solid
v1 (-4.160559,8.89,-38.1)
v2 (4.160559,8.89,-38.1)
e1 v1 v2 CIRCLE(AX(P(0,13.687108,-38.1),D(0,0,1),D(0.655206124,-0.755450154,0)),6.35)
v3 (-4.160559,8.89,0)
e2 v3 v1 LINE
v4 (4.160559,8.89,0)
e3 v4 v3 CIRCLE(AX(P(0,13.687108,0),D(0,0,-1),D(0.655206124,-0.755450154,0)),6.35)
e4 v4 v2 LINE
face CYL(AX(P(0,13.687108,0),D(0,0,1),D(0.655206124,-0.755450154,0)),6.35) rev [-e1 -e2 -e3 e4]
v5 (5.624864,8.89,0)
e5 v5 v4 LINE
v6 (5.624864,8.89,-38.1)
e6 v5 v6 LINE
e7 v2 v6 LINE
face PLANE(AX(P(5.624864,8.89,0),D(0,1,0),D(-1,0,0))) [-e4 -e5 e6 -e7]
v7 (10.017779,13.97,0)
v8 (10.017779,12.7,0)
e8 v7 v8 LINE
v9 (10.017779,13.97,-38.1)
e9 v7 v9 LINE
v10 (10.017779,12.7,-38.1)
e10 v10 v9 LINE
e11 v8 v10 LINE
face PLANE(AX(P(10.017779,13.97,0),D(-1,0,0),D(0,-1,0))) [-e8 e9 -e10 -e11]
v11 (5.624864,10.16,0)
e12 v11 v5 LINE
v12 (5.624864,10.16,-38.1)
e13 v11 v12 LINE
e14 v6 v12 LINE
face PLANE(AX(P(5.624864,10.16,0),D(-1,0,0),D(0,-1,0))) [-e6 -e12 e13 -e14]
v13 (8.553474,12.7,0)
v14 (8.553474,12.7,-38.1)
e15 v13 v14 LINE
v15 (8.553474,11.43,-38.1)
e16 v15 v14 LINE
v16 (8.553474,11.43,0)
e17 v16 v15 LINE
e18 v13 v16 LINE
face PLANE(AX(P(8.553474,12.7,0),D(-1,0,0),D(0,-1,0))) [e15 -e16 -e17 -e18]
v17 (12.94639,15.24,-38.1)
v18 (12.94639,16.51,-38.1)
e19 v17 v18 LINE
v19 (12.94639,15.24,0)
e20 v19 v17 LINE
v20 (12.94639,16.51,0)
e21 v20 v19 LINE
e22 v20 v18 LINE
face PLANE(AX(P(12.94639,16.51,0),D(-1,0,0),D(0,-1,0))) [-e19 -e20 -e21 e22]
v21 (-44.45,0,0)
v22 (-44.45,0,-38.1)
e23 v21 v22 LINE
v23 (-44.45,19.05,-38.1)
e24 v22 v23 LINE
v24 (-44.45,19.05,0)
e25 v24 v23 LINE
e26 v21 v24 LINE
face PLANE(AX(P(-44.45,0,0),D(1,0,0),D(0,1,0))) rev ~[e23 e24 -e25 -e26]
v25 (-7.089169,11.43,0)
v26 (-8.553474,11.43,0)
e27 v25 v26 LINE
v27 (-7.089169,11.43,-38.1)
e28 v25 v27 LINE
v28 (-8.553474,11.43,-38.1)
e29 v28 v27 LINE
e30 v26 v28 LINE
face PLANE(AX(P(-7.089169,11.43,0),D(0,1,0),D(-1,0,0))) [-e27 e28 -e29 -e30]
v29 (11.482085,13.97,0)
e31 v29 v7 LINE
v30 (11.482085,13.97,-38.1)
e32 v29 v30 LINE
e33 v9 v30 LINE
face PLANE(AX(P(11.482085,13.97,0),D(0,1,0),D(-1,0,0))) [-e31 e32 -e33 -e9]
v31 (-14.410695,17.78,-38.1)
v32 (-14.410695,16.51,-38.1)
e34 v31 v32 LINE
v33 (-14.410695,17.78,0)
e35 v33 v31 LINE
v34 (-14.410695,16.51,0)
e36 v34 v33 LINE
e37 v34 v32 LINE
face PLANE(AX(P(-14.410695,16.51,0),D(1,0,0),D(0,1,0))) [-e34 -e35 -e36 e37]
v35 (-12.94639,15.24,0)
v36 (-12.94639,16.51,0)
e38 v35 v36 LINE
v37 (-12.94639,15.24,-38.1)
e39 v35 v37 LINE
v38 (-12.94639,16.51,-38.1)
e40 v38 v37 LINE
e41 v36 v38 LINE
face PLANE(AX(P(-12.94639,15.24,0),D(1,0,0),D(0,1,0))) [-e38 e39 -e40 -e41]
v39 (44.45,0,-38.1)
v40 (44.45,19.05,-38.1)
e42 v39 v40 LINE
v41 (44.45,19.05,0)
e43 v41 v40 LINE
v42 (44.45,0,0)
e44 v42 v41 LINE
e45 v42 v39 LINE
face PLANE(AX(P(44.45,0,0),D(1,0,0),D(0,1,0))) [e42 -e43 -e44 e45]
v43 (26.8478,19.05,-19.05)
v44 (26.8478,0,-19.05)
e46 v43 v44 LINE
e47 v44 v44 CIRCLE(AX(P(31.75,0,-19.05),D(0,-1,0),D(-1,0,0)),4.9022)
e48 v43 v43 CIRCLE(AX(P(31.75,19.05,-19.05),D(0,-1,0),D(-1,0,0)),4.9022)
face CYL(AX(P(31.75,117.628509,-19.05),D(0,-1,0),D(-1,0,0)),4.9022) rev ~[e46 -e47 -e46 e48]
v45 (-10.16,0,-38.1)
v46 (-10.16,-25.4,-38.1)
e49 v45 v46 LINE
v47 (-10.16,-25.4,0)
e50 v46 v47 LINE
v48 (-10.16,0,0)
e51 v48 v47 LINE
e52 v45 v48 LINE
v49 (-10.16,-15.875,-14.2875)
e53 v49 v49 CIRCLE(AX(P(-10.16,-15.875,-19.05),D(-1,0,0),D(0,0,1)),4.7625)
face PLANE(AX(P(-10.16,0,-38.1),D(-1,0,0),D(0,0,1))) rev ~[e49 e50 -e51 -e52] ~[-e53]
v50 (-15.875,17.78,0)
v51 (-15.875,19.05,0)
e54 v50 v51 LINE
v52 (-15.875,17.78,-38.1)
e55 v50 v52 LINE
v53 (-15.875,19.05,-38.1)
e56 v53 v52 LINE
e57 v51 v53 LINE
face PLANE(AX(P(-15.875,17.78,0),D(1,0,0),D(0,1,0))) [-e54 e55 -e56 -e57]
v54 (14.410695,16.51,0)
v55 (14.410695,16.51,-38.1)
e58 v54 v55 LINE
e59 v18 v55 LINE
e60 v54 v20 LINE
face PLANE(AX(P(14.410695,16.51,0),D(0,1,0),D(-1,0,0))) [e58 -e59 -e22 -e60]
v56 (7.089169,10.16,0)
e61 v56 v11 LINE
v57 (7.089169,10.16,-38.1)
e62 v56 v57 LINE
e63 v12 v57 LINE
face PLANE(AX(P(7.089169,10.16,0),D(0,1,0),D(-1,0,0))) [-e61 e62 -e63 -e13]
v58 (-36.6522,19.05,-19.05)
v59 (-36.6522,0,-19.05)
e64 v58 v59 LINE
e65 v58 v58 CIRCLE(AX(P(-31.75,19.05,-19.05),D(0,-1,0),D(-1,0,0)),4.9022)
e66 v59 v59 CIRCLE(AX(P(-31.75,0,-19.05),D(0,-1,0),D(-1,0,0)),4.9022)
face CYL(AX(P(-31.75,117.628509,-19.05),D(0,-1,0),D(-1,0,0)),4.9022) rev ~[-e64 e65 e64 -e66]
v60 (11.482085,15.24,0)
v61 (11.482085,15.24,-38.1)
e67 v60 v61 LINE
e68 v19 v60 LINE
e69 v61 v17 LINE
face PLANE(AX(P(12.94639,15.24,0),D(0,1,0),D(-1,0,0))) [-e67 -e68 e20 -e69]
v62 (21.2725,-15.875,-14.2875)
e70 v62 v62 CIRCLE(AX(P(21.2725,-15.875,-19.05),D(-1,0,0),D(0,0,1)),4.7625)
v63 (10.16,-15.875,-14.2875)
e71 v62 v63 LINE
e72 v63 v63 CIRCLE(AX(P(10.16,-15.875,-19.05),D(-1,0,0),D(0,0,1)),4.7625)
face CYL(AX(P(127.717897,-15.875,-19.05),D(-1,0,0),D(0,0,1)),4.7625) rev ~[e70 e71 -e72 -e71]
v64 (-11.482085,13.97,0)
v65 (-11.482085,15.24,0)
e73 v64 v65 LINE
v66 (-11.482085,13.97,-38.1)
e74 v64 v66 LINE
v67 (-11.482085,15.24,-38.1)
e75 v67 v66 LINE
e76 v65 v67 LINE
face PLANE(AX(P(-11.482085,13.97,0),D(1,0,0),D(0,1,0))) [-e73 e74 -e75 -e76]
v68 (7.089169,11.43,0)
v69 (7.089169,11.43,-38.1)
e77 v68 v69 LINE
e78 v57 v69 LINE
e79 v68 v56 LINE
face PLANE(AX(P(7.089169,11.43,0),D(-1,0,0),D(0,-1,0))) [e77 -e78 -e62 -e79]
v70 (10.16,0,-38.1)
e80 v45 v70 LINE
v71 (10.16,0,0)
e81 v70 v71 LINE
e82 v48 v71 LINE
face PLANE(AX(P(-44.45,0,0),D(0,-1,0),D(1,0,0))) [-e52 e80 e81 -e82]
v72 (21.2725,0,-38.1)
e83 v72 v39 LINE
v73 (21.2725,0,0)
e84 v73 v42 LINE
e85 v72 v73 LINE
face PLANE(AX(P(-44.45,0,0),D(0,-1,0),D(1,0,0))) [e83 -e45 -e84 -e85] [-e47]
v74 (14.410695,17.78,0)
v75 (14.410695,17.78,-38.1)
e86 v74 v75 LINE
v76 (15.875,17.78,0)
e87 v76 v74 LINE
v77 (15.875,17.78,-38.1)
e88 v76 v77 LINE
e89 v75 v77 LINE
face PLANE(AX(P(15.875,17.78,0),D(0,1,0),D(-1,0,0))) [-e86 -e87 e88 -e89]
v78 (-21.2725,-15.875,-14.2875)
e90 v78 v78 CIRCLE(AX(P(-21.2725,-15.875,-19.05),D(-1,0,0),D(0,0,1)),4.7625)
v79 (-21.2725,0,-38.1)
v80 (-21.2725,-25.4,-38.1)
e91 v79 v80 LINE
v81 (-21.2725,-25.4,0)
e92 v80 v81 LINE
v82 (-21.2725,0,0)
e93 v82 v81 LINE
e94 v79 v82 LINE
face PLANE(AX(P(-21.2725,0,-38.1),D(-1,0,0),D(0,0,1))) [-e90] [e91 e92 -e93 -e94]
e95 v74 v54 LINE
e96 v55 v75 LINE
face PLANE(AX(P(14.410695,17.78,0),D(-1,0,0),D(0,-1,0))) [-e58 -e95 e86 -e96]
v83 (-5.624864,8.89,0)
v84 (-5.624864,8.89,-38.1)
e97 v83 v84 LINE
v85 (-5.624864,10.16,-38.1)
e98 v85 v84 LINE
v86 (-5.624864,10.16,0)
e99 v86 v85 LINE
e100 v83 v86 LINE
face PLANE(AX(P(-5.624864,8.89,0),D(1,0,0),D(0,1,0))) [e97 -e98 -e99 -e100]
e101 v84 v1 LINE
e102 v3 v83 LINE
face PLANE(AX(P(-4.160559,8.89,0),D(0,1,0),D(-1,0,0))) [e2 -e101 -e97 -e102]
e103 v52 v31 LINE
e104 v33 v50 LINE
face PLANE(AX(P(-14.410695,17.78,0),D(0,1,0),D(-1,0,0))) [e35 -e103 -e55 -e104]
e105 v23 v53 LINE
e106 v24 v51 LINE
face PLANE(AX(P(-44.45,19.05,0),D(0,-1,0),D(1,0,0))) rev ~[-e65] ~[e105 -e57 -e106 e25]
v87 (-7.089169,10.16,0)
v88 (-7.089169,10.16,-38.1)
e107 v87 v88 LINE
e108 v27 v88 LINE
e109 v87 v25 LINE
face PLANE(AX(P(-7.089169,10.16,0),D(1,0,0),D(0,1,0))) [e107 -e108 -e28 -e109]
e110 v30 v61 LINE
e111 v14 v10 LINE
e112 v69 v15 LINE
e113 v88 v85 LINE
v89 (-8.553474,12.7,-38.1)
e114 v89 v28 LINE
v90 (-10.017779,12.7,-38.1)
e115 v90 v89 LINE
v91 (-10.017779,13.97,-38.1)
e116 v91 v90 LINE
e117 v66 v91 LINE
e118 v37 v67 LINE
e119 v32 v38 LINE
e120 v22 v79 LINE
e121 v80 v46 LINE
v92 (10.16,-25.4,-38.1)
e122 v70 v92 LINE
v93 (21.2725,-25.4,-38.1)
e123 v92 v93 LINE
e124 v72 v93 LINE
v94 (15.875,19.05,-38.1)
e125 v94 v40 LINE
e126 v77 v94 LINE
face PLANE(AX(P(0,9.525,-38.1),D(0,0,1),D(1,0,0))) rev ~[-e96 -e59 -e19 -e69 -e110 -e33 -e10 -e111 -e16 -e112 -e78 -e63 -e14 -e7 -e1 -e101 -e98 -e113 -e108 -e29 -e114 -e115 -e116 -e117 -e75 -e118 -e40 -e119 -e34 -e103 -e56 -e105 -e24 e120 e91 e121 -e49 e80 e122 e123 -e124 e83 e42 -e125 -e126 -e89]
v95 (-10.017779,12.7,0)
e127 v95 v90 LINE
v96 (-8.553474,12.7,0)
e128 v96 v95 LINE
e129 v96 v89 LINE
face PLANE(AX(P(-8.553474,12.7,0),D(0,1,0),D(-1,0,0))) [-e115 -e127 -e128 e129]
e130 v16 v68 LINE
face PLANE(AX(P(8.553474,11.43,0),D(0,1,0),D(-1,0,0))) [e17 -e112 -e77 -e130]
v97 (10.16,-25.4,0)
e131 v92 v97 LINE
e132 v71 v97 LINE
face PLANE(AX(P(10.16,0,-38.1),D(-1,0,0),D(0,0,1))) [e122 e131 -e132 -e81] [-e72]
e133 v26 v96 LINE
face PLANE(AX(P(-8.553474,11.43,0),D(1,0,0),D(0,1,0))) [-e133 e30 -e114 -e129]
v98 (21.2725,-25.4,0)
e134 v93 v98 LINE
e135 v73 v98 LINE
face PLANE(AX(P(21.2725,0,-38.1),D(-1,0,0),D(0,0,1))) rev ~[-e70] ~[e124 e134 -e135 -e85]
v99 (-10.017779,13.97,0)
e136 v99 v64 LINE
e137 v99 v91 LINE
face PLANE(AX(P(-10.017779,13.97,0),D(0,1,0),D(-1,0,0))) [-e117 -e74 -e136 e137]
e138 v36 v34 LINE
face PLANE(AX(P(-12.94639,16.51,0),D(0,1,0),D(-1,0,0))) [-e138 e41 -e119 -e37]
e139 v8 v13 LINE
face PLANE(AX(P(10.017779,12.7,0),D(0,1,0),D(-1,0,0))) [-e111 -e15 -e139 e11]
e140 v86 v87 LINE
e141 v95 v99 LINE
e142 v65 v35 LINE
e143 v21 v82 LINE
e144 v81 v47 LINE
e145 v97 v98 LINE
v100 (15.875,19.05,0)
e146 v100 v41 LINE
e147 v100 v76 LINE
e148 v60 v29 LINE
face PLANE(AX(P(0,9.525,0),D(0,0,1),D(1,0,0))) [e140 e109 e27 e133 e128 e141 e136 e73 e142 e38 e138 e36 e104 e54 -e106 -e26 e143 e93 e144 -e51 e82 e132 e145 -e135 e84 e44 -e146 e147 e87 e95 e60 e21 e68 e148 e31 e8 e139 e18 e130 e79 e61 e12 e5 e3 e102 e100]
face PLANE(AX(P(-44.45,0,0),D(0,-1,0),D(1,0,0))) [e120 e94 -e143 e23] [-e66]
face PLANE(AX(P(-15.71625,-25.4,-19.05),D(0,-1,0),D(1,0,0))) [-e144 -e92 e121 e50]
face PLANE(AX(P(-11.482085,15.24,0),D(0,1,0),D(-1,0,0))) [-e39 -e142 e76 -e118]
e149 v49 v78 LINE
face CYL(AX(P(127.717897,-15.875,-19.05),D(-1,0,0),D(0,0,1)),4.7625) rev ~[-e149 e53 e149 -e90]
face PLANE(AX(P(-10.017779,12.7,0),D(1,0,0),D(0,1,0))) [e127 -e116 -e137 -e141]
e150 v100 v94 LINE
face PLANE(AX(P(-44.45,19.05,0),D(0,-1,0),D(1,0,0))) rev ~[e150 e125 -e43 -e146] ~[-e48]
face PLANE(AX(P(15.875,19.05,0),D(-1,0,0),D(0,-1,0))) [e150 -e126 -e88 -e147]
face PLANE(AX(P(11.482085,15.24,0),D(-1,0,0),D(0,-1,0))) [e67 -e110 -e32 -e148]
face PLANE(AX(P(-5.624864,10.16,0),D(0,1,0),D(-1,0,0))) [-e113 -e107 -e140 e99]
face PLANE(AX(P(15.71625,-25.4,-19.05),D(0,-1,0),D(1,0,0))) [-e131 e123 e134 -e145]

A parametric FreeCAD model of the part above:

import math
import FreeCAD as App
import Part
import Sketcher
Q = App.Units.Quantity


def add_polygon(sketch, points):
    """Adds a closed chain of lines whose ends are joined by coincident constraints."""
    first, n = sketch.GeometryCount, len(points)
    for a, b in zip(points, points[1:] + points[:1]):
        sketch.addGeometry(Part.LineSegment(App.Vector(*a, 0), App.Vector(*b, 0)), False)
    for i in range(n):
        sketch.addConstraint(Sketcher.Constraint("Coincident", first + i, 2, first + (i + 1) % n, 1))

doc = App.newDocument("Part")
params = doc.addObject("Spreadsheet::Sheet", "Params")
for row, (alias, value) in enumerate([
    ("sketch1_width", "3.5 in"),
    ("sketch1_height", "0.75 in"),
    ("pad1_length", "1.5 in"),
    ("sketch2_radius", "0.25 in"),
    ("sketch2_width", "1.25 in"),
    ("sketch2_height", "0.05 in"),
    ("sketch3_diameter", "0.386 in"),
    ("hole_diameter", "0.386 in"),
    ("sketch4_height", "1.5 in"),
    ("sketch4_width", "0.4375 in"),
    ("pad2_length", "1 in"),
    ("sketch5_diameter", "0.375 in"),
    ("hole2_diameter", "0.375 in"),
], start=1):
    params.set(f"A{row}", alias)
    params.set(f"B{row}", "=" + value)
    params.setAlias(f"B{row}", alias)

body = doc.addObject("PartDesign::Body", "Body")

# Sketch on XY plane
sketch1 = body.newObject("Sketcher::SketchObject", "Sketch")
sketch1.AttachmentSupport = (doc.getObject("XY_Plane"), [""])
sketch1.MapMode = "FlatFace"
add_polygon(sketch1, [(-44, 19), (-44, 0), (44, 0), (44, 19)])  # lines 0-3
sketch1.addConstraint([
    Sketcher.Constraint("Vertical", 0),
    Sketcher.Constraint("Horizontal", 1),
    Sketcher.Constraint("Vertical", 2),
    Sketcher.Constraint("Horizontal", 3),
    Sketcher.Constraint("Symmetric", 0, 2, 1, 2, -1, 1),
    Sketcher.Constraint("DistanceX", 1, 1, 1, 2, Q("3.5 in")),
    Sketcher.Constraint("DistanceY", 0, 2, 0, 1, Q("0.75 in")),
])
sketch1.setExpression("Constraints[9]", "Params.sketch1_width")
sketch1.setExpression("Constraints[10]", "Params.sketch1_height")
pad1 = body.newObject("PartDesign::Pad", "Pad")
pad1.Profile = sketch1
pad1.setExpression("Length", "Params.pad1_length")
pad1.Reversed = True

# Sketch on XY plane
sketch2 = body.newObject("Sketcher::SketchObject", "Sketch001")
sketch2.AttachmentSupport = (doc.getObject("XY_Plane"), [""])
sketch2.MapMode = "FlatFace"
sketch2.addGeometry([
    Part.LineSegment(App.Vector(15.9, 19.1, 0), App.Vector(-15.9, 19.1, 0)),  # 0
    Part.LineSegment(App.Vector(-15.9, 19.1, 0), App.Vector(-15.9, 17.8, 0)),  # 1
    Part.LineSegment(App.Vector(-15.9, 17.8, 0), App.Vector(-14.4, 17.8, 0)),  # 2
    Part.LineSegment(App.Vector(-14.4, 17.8, 0), App.Vector(-14.4, 16.5, 0)),  # 3
    Part.LineSegment(App.Vector(-14.4, 16.5, 0), App.Vector(-12.9, 16.5, 0)),  # 4
    Part.LineSegment(App.Vector(-12.9, 16.5, 0), App.Vector(-12.9, 15.2, 0)),  # 5
    Part.LineSegment(App.Vector(-12.9, 15.2, 0), App.Vector(-11.5, 15.2, 0)),  # 6
    Part.LineSegment(App.Vector(-11.5, 15.2, 0), App.Vector(-11.5, 14, 0)),  # 7
    Part.LineSegment(App.Vector(-11.5, 14, 0), App.Vector(-10, 14, 0)),  # 8
    Part.LineSegment(App.Vector(-10, 14, 0), App.Vector(-10, 12.7, 0)),  # 9
    Part.LineSegment(App.Vector(-10, 12.7, 0), App.Vector(-8.6, 12.7, 0)),  # 10
    Part.LineSegment(App.Vector(-8.6, 12.7, 0), App.Vector(-8.6, 11.4, 0)),  # 11
    Part.LineSegment(App.Vector(-8.6, 11.4, 0), App.Vector(-7.1, 11.4, 0)),  # 12
    Part.LineSegment(App.Vector(-7.1, 11.4, 0), App.Vector(-7.1, 10.2, 0)),  # 13
    Part.LineSegment(App.Vector(-7.1, 10.2, 0), App.Vector(-5.6, 10.2, 0)),  # 14
    Part.LineSegment(App.Vector(-5.6, 10.2, 0), App.Vector(-5.6, 8.9, 0)),  # 15
    Part.LineSegment(App.Vector(-5.6, 8.9, 0), App.Vector(-4.2, 8.9, 0)),  # 16
    Part.ArcOfCircle(Part.Circle(App.Vector(0, 13.7, 0), App.Vector(0, 0, 1), 6.3), math.radians(-131), math.radians(-49)),  # 17
    Part.LineSegment(App.Vector(4.2, 8.9, 0), App.Vector(5.6, 8.9, 0)),  # 18
    Part.LineSegment(App.Vector(5.6, 8.9, 0), App.Vector(5.6, 10.2, 0)),  # 19
    Part.LineSegment(App.Vector(5.6, 10.2, 0), App.Vector(7.1, 10.2, 0)),  # 20
    Part.LineSegment(App.Vector(7.1, 10.2, 0), App.Vector(7.1, 11.4, 0)),  # 21
    Part.LineSegment(App.Vector(7.1, 11.4, 0), App.Vector(8.6, 11.4, 0)),  # 22
    Part.LineSegment(App.Vector(8.6, 11.4, 0), App.Vector(8.6, 12.7, 0)),  # 23
    Part.LineSegment(App.Vector(8.6, 12.7, 0), App.Vector(10, 12.7, 0)),  # 24
    Part.LineSegment(App.Vector(10, 12.7, 0), App.Vector(10, 14, 0)),  # 25
    Part.LineSegment(App.Vector(10, 14, 0), App.Vector(11.5, 14, 0)),  # 26
    Part.LineSegment(App.Vector(11.5, 14, 0), App.Vector(11.5, 15.2, 0)),  # 27
    Part.LineSegment(App.Vector(11.5, 15.2, 0), App.Vector(12.9, 15.2, 0)),  # 28
    Part.LineSegment(App.Vector(12.9, 15.2, 0), App.Vector(12.9, 16.5, 0)),  # 29
    Part.LineSegment(App.Vector(12.9, 16.5, 0), App.Vector(14.4, 16.5, 0)),  # 30
    Part.LineSegment(App.Vector(14.4, 16.5, 0), App.Vector(14.4, 17.8, 0)),  # 31
    Part.LineSegment(App.Vector(14.4, 17.8, 0), App.Vector(15.9, 17.8, 0)),  # 32
    Part.LineSegment(App.Vector(15.9, 17.8, 0), App.Vector(15.9, 19.1, 0)),  # 33
], False)
sketch2.addConstraint([
    Sketcher.Constraint("Coincident", 0, 2, 1, 1),
    Sketcher.Constraint("Coincident", 1, 2, 2, 1),
    Sketcher.Constraint("Coincident", 2, 2, 3, 1),
    Sketcher.Constraint("Coincident", 3, 2, 4, 1),
    Sketcher.Constraint("Coincident", 4, 2, 5, 1),
    Sketcher.Constraint("Coincident", 5, 2, 6, 1),
    Sketcher.Constraint("Coincident", 6, 2, 7, 1),
    Sketcher.Constraint("Coincident", 7, 2, 8, 1),
    Sketcher.Constraint("Coincident", 8, 2, 9, 1),
    Sketcher.Constraint("Coincident", 9, 2, 10, 1),
    Sketcher.Constraint("Coincident", 10, 2, 11, 1),
    Sketcher.Constraint("Coincident", 11, 2, 12, 1),
    Sketcher.Constraint("Coincident", 12, 2, 13, 1),
    Sketcher.Constraint("Coincident", 13, 2, 14, 1),
    Sketcher.Constraint("Coincident", 14, 2, 15, 1),
    Sketcher.Constraint("Coincident", 15, 2, 16, 1),
    Sketcher.Constraint("Coincident", 16, 2, 17, 1),
    Sketcher.Constraint("Coincident", 17, 2, 18, 1),
    Sketcher.Constraint("Coincident", 18, 2, 19, 1),
    Sketcher.Constraint("Coincident", 19, 2, 20, 1),
    Sketcher.Constraint("Coincident", 20, 2, 21, 1),
    Sketcher.Constraint("Coincident", 21, 2, 22, 1),
    Sketcher.Constraint("Coincident", 22, 2, 23, 1),
    Sketcher.Constraint("Coincident", 23, 2, 24, 1),
    Sketcher.Constraint("Coincident", 24, 2, 25, 1),
    Sketcher.Constraint("Coincident", 25, 2, 26, 1),
    Sketcher.Constraint("Coincident", 26, 2, 27, 1),
    Sketcher.Constraint("Coincident", 27, 2, 28, 1),
    Sketcher.Constraint("Coincident", 28, 2, 29, 1),
    Sketcher.Constraint("Coincident", 29, 2, 30, 1),
    Sketcher.Constraint("Coincident", 30, 2, 31, 1),
    Sketcher.Constraint("Coincident", 31, 2, 32, 1),
    Sketcher.Constraint("Coincident", 32, 2, 33, 1),
    Sketcher.Constraint("Coincident", 33, 2, 0, 1),
    Sketcher.Constraint("Horizontal", 0),
    Sketcher.Constraint("Vertical", 1),
    Sketcher.Constraint("Horizontal", 2),
    Sketcher.Constraint("Vertical", 3),
    Sketcher.Constraint("Horizontal", 4),
    Sketcher.Constraint("Vertical", 5),
    Sketcher.Constraint("Horizontal", 6),
    Sketcher.Constraint("Vertical", 7),
    Sketcher.Constraint("Horizontal", 8),
    Sketcher.Constraint("Vertical", 9),
    Sketcher.Constraint("Horizontal", 10),
    Sketcher.Constraint("Vertical", 11),
    Sketcher.Constraint("Horizontal", 12),
    Sketcher.Constraint("Vertical", 13),
    Sketcher.Constraint("Horizontal", 14),
    Sketcher.Constraint("Vertical", 15),
    Sketcher.Constraint("Horizontal", 16),
    Sketcher.Constraint("Horizontal", 18),
    Sketcher.Constraint("Vertical", 19),
    Sketcher.Constraint("Horizontal", 20),
    Sketcher.Constraint("Vertical", 21),
    Sketcher.Constraint("Horizontal", 22),
    Sketcher.Constraint("Vertical", 23),
    Sketcher.Constraint("Horizontal", 24),
    Sketcher.Constraint("Vertical", 25),
    Sketcher.Constraint("Horizontal", 26),
    Sketcher.Constraint("Vertical", 27),
    Sketcher.Constraint("Horizontal", 28),
    Sketcher.Constraint("Vertical", 29),
    Sketcher.Constraint("Horizontal", 30),
    Sketcher.Constraint("Vertical", 31),
    Sketcher.Constraint("Horizontal", 32),
    Sketcher.Constraint("Vertical", 33),
    Sketcher.Constraint("Symmetric", 16, 2, 17, 2, -2),
    Sketcher.Constraint("Symmetric", 14, 2, 19, 2, -2),
    Sketcher.Constraint("Symmetric", 12, 2, 21, 2, -2),
    Sketcher.Constraint("Symmetric", 10, 2, 23, 2, -2),
    Sketcher.Constraint("Symmetric", 8, 2, 25, 2, -2),
    Sketcher.Constraint("Symmetric", 6, 2, 27, 2, -2),
    Sketcher.Constraint("Symmetric", 4, 2, 29, 2, -2),
    Sketcher.Constraint("Symmetric", 2, 2, 31, 2, -2),
    Sketcher.Constraint("Equal", 2, 4),
    Sketcher.Constraint("Equal", 4, 6),
    Sketcher.Constraint("Equal", 6, 8),
    Sketcher.Constraint("Equal", 8, 10),
    Sketcher.Constraint("Equal", 10, 12),
    Sketcher.Constraint("Equal", 12, 14),
    Sketcher.Constraint("Equal", 14, 16),
    Sketcher.Constraint("Equal", 30, 32),
    Sketcher.Constraint("Equal", 1, 3),
    Sketcher.Constraint("Equal", 3, 5),
    Sketcher.Constraint("Equal", 5, 7),
    Sketcher.Constraint("Equal", 7, 9),
    Sketcher.Constraint("Equal", 9, 11),
    Sketcher.Constraint("Equal", 11, 13),
    Sketcher.Constraint("Equal", 13, 15),
    Sketcher.Constraint("Radius", 17, Q("0.25 in")),
    Sketcher.Constraint("DistanceX", 0, 2, 0, 1, Q("1.25 in")),
    Sketcher.Constraint("DistanceY", 1, 2, 1, 1, Q("0.05 in")),
    Sketcher.Constraint("DistanceY", -1, 1, 1, 2, Q("0.7 in")),
    Sketcher.Constraint("DistanceX", 2, 1, 2, 2, Q("1.464305 mm")),
])
sketch2.setExpression("Constraints[90]", "Params.sketch2_radius")
sketch2.setExpression("Constraints[91]", "Params.sketch2_width")
sketch2.setExpression("Constraints[92]", "Params.sketch2_height")
pocket1 = body.newObject("PartDesign::Pocket", "Pocket")
pocket1.Profile = sketch2
pocket1.Type = "UpToFirst"

# Sketch on XZ plane
sketch3 = body.newObject("Sketcher::SketchObject", "Sketch002")
sketch3.AttachmentSupport = (doc.getObject("XZ_Plane"), [""])
sketch3.MapMode = "FlatFace"
sketch3.AttachmentOffset = App.Placement(App.Vector(0, 0, -0.75 * 25.4), App.Rotation())
sketch3.addGeometry([
    Part.Circle(App.Vector(-31.8, -19.1, 0), App.Vector(0, 0, 1), 4.9),
    Part.Circle(App.Vector(31.8, -19.1, 0), App.Vector(0, 0, 1), 4.9),
], False)
sketch3.addConstraint([
    Sketcher.Constraint("Equal", 0, 1),
    Sketcher.Constraint("Symmetric", 0, 3, 1, 3, -2),
    Sketcher.Constraint("Diameter", 0, Q("0.386 in")),
    Sketcher.Constraint("DistanceX", 0, 3, 1, 3, Q("2.5 in")),
    Sketcher.Constraint("DistanceY", 0, 3, -1, 1, Q("0.75 in")),
])
sketch3.setExpression("Constraints[2]", "Params.sketch3_diameter")
doc.recompute()
hole = body.newObject("PartDesign::Hole", "Hole")
hole.Profile = sketch3
hole.ThreadType = "None"
hole.setExpression("Diameter", "Params.hole_diameter")
hole.DepthType = "ThroughAll"
hole.Reversed = True

# Sketch on XZ plane
sketch4 = body.newObject("Sketcher::SketchObject", "Sketch003")
sketch4.AttachmentSupport = (doc.getObject("XZ_Plane"), [""])
sketch4.MapMode = "FlatFace"
add_polygon(sketch4, [(-21, 0), (-21, -38), (-10, -38), (-10, 0)])  # lines 0-3
add_polygon(sketch4, [(10, 0), (10, -38), (21, -38), (21, 0)])  # lines 4-7
sketch4.addConstraint([
    Sketcher.Constraint("Vertical", 0),
    Sketcher.Constraint("Horizontal", 1),
    Sketcher.Constraint("Vertical", 2),
    Sketcher.Constraint("Horizontal", 3),
    Sketcher.Constraint("Vertical", 4),
    Sketcher.Constraint("Horizontal", 5),
    Sketcher.Constraint("Vertical", 6),
    Sketcher.Constraint("Horizontal", 7),
    Sketcher.Constraint("Symmetric", 3, 2, 6, 2, -1, 1),
    Sketcher.Constraint("Symmetric", 1, 2, 4, 2, -2),
    Sketcher.Constraint("PointOnObject", 2, 2, -1),
    Sketcher.Constraint("DistanceY", 0, 2, 0, 1, Q("1.5 in")),
    Sketcher.Constraint("DistanceX", 1, 2, -1, 1, Q("0.4 in")),
    Sketcher.Constraint("DistanceX", 1, 1, 1, 2, Q("0.4375 in")),
])
sketch4.setExpression("Constraints[19]", "Params.sketch4_height")
sketch4.setExpression("Constraints[21]", "Params.sketch4_width")
pad2 = body.newObject("PartDesign::Pad", "Pad001")
pad2.Profile = sketch4
pad2.setExpression("Length", "Params.pad2_length")

# Sketch on YZ plane
sketch5 = body.newObject("Sketcher::SketchObject", "Sketch004")
sketch5.AttachmentSupport = (doc.getObject("YZ_Plane"), [""])
sketch5.MapMode = "FlatFace"
sketch5.AttachmentOffset = App.Placement(App.Vector(0, 0, 0.8375 * 25.4), App.Rotation())
sketch5.addGeometry(Part.Circle(App.Vector(-15.9, -19.1, 0), App.Vector(0, 0, 1), 4.8), False)
sketch5.addConstraint([
    Sketcher.Constraint("Diameter", 0, Q("0.375 in")),
    Sketcher.Constraint("DistanceY", 0, 3, -1, 1, Q("0.75 in")),
    Sketcher.Constraint("DistanceX", 0, 3, -1, 1, Q("0.625 in")),
])
sketch5.setExpression("Constraints[0]", "Params.sketch5_diameter")
doc.recompute()
hole2 = body.newObject("PartDesign::Hole", "Hole001")
hole2.Profile = sketch5
hole2.ThreadType = "None"
hole2.setExpression("Diameter", "Params.hole2_diameter")
hole2.DepthType = "ThroughAll"

doc.recompute()
